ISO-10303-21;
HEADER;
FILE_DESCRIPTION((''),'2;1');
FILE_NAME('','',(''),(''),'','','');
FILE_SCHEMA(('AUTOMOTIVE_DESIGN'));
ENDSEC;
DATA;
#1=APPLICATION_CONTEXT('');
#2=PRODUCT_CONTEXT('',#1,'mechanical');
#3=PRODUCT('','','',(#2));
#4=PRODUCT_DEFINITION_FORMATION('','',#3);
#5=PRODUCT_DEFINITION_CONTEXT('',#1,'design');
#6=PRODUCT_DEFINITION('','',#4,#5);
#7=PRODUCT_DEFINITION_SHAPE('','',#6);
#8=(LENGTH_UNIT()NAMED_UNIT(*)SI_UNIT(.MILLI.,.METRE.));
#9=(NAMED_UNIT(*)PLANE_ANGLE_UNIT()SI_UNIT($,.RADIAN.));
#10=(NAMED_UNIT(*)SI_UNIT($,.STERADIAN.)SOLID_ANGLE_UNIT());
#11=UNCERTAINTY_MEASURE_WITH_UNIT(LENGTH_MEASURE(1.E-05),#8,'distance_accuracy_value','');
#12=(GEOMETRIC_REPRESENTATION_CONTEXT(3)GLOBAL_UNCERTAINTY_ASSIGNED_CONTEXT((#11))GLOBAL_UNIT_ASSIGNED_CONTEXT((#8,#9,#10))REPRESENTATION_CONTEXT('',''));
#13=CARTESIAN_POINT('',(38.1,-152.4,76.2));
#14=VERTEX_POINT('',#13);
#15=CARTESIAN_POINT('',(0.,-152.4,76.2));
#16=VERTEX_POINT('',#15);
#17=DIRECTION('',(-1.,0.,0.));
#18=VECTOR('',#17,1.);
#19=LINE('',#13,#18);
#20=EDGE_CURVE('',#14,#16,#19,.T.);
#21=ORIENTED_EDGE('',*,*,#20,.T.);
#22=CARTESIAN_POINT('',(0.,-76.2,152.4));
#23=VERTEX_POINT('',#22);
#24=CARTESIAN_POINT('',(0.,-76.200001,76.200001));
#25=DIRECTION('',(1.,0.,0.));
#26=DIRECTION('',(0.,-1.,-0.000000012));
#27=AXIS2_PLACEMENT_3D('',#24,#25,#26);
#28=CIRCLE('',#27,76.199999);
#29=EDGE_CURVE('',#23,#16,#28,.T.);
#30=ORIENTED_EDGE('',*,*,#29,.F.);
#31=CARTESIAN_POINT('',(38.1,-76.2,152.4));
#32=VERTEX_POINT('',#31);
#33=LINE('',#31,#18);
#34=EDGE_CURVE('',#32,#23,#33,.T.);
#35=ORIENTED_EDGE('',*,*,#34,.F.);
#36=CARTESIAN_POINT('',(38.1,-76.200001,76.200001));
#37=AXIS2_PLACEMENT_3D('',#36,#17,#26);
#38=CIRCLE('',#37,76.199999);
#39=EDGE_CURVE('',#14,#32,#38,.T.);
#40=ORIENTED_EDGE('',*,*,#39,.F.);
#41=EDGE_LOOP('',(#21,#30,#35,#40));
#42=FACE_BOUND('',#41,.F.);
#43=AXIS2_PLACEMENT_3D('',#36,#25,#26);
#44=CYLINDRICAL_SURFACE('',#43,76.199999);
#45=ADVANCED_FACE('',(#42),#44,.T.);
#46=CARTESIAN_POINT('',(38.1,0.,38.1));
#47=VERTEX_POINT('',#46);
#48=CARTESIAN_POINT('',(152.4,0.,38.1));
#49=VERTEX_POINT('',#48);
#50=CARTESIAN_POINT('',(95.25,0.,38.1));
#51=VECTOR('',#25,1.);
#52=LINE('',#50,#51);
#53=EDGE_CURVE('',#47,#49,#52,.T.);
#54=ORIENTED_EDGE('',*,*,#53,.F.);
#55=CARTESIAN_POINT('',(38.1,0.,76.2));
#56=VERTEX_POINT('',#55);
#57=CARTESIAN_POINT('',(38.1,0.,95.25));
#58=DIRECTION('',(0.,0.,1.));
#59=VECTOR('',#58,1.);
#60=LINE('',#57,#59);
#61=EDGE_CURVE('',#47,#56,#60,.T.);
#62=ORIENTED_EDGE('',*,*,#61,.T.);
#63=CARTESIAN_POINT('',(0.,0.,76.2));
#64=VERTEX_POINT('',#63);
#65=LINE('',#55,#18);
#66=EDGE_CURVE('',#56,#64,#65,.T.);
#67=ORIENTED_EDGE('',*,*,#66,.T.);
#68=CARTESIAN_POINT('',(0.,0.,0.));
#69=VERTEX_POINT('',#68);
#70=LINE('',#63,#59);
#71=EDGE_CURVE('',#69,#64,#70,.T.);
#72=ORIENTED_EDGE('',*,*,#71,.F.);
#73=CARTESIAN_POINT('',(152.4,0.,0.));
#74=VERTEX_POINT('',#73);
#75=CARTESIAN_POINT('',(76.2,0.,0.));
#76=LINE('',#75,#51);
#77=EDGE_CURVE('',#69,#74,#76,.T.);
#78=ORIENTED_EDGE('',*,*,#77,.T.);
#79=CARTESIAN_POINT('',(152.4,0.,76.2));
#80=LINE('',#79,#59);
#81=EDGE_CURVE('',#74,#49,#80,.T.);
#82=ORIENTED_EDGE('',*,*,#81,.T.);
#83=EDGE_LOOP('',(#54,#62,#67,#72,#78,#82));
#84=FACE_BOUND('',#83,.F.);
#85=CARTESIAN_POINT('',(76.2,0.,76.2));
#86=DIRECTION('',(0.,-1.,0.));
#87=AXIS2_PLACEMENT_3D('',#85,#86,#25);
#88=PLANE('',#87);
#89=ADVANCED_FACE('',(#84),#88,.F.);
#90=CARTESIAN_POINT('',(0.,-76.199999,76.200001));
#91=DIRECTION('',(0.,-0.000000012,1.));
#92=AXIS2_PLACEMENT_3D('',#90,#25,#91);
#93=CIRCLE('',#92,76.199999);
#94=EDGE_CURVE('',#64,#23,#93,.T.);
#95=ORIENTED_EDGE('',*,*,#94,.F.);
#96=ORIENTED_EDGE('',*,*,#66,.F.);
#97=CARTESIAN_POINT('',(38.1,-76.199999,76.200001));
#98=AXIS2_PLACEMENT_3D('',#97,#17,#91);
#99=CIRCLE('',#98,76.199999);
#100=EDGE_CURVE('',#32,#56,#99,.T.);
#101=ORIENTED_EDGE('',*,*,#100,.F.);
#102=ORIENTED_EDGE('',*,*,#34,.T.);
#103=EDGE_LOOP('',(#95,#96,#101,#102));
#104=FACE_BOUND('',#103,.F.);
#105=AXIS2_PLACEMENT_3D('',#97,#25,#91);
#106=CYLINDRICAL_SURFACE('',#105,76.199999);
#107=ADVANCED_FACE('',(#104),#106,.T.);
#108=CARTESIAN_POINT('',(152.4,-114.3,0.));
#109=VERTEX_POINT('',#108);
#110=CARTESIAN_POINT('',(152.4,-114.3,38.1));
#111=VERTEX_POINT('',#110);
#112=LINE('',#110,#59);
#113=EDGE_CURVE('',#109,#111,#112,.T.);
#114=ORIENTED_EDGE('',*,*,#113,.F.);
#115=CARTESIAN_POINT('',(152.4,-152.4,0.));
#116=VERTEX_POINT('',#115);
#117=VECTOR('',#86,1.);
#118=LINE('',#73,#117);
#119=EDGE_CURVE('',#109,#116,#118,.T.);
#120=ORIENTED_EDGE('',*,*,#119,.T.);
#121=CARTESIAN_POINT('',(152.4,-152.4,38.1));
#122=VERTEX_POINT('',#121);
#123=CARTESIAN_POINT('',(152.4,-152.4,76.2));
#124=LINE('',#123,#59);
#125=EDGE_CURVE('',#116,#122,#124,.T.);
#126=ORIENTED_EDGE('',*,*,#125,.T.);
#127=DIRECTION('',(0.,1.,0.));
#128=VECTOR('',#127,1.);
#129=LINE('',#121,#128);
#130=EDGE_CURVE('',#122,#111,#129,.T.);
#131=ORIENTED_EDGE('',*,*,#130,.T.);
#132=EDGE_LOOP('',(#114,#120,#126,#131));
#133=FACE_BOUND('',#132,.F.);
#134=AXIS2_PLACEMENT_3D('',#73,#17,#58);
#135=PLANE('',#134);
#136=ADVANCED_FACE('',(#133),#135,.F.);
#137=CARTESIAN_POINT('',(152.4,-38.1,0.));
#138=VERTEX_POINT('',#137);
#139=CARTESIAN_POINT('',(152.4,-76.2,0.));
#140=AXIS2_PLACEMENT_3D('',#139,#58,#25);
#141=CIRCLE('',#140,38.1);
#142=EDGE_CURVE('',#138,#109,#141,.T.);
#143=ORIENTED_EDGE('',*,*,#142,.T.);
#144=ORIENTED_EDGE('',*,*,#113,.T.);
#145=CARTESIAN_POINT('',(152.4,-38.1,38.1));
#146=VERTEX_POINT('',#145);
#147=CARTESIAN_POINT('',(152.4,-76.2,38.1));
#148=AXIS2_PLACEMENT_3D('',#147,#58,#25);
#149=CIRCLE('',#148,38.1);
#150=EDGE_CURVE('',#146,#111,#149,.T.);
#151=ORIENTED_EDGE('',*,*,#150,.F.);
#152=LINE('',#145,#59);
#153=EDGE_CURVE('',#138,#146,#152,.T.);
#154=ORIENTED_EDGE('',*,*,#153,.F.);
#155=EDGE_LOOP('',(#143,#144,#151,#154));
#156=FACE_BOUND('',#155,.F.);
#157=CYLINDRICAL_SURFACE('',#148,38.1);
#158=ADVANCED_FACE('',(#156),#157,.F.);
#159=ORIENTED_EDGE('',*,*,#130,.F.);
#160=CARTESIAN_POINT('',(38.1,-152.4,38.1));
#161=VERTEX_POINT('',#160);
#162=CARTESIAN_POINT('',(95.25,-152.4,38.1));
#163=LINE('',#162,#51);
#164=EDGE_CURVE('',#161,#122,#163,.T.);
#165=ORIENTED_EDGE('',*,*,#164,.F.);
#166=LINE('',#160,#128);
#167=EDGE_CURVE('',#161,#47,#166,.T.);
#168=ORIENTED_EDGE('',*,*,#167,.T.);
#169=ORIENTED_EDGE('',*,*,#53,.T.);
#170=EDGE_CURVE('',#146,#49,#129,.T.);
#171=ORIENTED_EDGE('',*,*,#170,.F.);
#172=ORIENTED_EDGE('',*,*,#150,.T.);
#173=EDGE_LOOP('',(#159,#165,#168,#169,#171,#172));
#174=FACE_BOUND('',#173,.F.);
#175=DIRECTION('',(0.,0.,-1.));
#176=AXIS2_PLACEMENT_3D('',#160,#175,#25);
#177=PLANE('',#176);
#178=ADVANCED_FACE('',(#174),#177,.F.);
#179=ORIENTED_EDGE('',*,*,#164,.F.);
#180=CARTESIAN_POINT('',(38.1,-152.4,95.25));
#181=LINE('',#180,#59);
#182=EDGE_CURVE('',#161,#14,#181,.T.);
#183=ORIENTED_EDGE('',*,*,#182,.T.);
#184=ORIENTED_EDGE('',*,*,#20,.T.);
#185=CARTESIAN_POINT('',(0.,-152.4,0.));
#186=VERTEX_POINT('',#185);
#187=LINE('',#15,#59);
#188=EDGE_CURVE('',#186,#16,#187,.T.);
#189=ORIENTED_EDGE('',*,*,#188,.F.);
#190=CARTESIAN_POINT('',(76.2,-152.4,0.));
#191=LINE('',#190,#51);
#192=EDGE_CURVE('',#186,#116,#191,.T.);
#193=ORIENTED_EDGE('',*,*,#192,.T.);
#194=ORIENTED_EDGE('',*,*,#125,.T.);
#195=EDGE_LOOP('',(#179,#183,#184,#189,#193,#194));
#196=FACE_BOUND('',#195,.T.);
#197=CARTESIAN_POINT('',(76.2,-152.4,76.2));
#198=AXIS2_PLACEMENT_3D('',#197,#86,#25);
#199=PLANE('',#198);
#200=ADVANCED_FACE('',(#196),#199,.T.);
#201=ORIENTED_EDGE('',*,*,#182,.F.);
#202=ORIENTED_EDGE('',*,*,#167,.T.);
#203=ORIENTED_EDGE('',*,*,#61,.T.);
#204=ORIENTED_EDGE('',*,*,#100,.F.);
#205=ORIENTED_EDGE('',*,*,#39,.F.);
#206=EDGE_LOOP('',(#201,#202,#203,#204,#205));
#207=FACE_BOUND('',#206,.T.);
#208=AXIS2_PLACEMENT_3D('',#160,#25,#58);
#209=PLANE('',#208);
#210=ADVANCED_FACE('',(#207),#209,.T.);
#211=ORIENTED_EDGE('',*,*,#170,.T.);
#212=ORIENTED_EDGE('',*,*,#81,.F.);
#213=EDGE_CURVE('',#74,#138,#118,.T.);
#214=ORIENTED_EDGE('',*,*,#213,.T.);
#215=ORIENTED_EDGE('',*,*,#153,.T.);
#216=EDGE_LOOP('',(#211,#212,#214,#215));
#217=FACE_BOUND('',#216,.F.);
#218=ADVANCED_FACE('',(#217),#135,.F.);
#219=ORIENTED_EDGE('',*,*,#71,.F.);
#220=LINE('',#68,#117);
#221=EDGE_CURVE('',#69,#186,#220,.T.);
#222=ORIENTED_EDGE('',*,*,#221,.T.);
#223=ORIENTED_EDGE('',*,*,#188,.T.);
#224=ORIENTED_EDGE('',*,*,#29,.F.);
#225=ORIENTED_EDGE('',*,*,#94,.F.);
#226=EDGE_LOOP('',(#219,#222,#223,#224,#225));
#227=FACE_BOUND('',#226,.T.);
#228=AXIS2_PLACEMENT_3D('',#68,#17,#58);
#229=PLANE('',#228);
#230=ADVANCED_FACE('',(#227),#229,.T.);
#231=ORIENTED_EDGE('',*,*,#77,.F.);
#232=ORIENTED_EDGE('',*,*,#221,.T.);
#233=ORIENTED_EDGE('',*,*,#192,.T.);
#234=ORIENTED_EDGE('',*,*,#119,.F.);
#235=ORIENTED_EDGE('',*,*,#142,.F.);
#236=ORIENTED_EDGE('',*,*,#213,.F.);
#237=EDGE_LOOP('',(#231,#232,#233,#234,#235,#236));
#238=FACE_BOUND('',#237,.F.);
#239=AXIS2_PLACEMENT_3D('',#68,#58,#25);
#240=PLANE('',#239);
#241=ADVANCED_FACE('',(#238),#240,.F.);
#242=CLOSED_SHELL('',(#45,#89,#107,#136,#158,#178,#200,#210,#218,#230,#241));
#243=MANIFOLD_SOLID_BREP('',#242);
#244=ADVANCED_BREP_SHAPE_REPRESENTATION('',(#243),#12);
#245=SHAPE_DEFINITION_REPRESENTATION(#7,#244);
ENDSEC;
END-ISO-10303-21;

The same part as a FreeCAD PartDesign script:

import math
import FreeCAD as App
import Part
import Sketcher
Q = App.Units.Quantity


def add_polygon(sketch, points):
    """Adds a closed chain of lines whose ends are joined by coincident constraints."""
    first, n = sketch.GeometryCount, len(points)
    for a, b in zip(points, points[1:] + points[:1]):
        sketch.addGeometry(Part.LineSegment(App.Vector(*a, 0), App.Vector(*b, 0)), False)
    for i in range(n):
        sketch.addConstraint(Sketcher.Constraint("Coincident", first + i, 2, first + (i + 1) % n, 1))

doc = App.newDocument("Part")
body = doc.addObject("PartDesign::Body", "Body")

sketch1 = doc.addObject("Sketcher::SketchObject", "Sketch")
body.addObject(sketch1)
sketch1.AttachmentSupport = (doc.XZ_Plane, [""])
sketch1.MapMode = "FlatFace"
add_polygon(sketch1, [(0, 152.4), (0, 0), (152.4, 0), (152.4, 152.4)])
sketch1.addConstraint(Sketcher.Constraint("Vertical", 0))
sketch1.addConstraint(Sketcher.Constraint("Horizontal", 1))
sketch1.addConstraint(Sketcher.Constraint("Vertical", 2))
sketch1.addConstraint(Sketcher.Constraint("Horizontal", 3))
sketch1.addConstraint(Sketcher.Constraint("Coincident", 0, 2, -1, 1))
sketch1.addConstraint(Sketcher.Constraint("Equal", 3, 0))
sketch1.addConstraint(Sketcher.Constraint("DistanceX", 1, 1, 1, 2, Q("6 in")))
pad1 = doc.addObject("PartDesign::Pad", "Pad")
body.addObject(pad1)
pad1.Profile = sketch1
pad1.Length = Q("6 in")

sketch2 = doc.addObject("Sketcher::SketchObject", "Sketch001")
body.addObject(sketch2)
sketch2.AttachmentSupport = (doc.XZ_Plane, [""])
sketch2.MapMode = "FlatFace"
sketch2.AttachmentOffset = App.Placement(App.Vector(0, 0, 6 * 25.4), App.Rotation())
add_polygon(sketch2, [(38.1, 152.4), (38.1, 38.1), (152.4, 38.1), (152.4, 152.4)])
sketch2.addConstraint(Sketcher.Constraint("Vertical", 0))
sketch2.addConstraint(Sketcher.Constraint("Horizontal", 1))
sketch2.addConstraint(Sketcher.Constraint("Vertical", 2))
sketch2.addConstraint(Sketcher.Constraint("Horizontal", 3))
sketch2.addConstraint(Sketcher.Constraint("Equal", 3, 0))
sketch2.addConstraint(Sketcher.Constraint("DistanceX", 1, 1, 1, 2, Q("4.5 in")))
sketch2.addConstraint(Sketcher.Constraint("DistanceX", -1, 1, 1, 2, Q("6 in")))
sketch2.addConstraint(Sketcher.Constraint("DistanceY", -1, 1, 2, 2, Q("6 in")))
pocket1 = doc.addObject("PartDesign::Pocket", "Pocket")
body.addObject(pocket1)
pocket1.Profile = sketch2
pocket1.Length = Q("6 in")

sketch3 = doc.addObject("Sketcher::SketchObject", "Sketch002")
body.addObject(sketch3)
sketch3.AttachmentSupport = (doc.XY_Plane, [""])
sketch3.MapMode = "FlatFace"
sketch3.AttachmentOffset = App.Placement(App.Vector(0, 0, 1.5 * 25.4), App.Rotation())
sketch3.addGeometry(Part.Circle(App.Vector(152.4, -76.2, 0), App.Vector(0, 0, 1), 38.1), False)
sketch3.addConstraint(Sketcher.Constraint("Diameter", 0, Q("3 in")))
sketch3.addConstraint(Sketcher.Constraint("DistanceX", -1, 1, 0, 3, Q("6 in")))
sketch3.addConstraint(Sketcher.Constraint("DistanceY", 0, 3, -1, 1, Q("3 in")))
pocket2 = doc.addObject("PartDesign::Pocket", "Pocket001")
body.addObject(pocket2)
pocket2.Profile = sketch3
pocket2.Length = Q("3 in")

sketch4 = doc.addObject("Sketcher::SketchObject", "Sketch003")
body.addObject(sketch4)
sketch4.AttachmentSupport = (doc.YZ_Plane, [""])
sketch4.MapMode = "FlatFace"
sketch4.AttachmentOffset = App.Placement(App.Vector(0, 0, 1.5 * 25.4), App.Rotation())
sketch4.addGeometry(Part.LineSegment(App.Vector(-76.2, 152.4, 0), App.Vector(-152.4, 152.4, 0)), False)
sketch4.addGeometry(Part.LineSegment(App.Vector(-152.4, 152.4, 0), App.Vector(-152.4, 76.2, 0)), False)
sketch4.addGeometry(Part.ArcOfCircle(Part.Circle(App.Vector(-76.200001, 76.200001, 0), App.Vector(0, 0, 1), 76.199999), math.radians(89.999999), math.radians(180.000001)), False)
sketch4.addGeometry(Part.LineSegment(App.Vector(0, 152.4, 0), App.Vector(-76.2, 152.4, 0)), False)
sketch4.addGeometry(Part.ArcOfCircle(Part.Circle(App.Vector(-76.199999, 76.200001, 0), App.Vector(0, 0, 1), 76.199999), math.radians(-0.000001), math.radians(90.000001)), False)
sketch4.addGeometry(Part.LineSegment(App.Vector(0, 76.2, 0), App.Vector(0, 152.4, 0)), False)
sketch4.addConstraint(Sketcher.Constraint("Coincident", 0, 2, 1, 1))
sketch4.addConstraint(Sketcher.Constraint("Tangent", 1, 2, 2, 2))
sketch4.addConstraint(Sketcher.Constraint("Tangent", 2, 1, 0, 1))
sketch4.addConstraint(Sketcher.Constraint("Tangent", 3, 2, 4, 2))
sketch4.addConstraint(Sketcher.Constraint("Tangent", 4, 1, 5, 1))
sketch4.addConstraint(Sketcher.Constraint("Coincident", 5, 2, 3, 1))
sketch4.addConstraint(Sketcher.Constraint("Horizontal", 0))
sketch4.addConstraint(Sketcher.Constraint("Vertical", 1))
sketch4.addConstraint(Sketcher.Constraint("Horizontal", 3))
sketch4.addConstraint(Sketcher.Constraint("Vertical", 5))
sketch4.addConstraint(Sketcher.Constraint("Coincident", 4, 3, 2, 3))
sketch4.addConstraint(Sketcher.Constraint("Equal", 2, 4))
sketch4.addConstraint(Sketcher.Constraint("PointOnObject", 4, 1, -2))
sketch4.addConstraint(Sketcher.Constraint("Radius", 2, Q("3 in")))
sketch4.addConstraint(Sketcher.Constraint("DistanceY", -1, 1, 2, 3, Q("3 in")))
pocket3 = doc.addObject("PartDesign::Pocket", "Pocket002")
body.addObject(pocket3)
pocket3.Profile = sketch4
pocket3.Length = Q("12 in")

doc.recompute()
